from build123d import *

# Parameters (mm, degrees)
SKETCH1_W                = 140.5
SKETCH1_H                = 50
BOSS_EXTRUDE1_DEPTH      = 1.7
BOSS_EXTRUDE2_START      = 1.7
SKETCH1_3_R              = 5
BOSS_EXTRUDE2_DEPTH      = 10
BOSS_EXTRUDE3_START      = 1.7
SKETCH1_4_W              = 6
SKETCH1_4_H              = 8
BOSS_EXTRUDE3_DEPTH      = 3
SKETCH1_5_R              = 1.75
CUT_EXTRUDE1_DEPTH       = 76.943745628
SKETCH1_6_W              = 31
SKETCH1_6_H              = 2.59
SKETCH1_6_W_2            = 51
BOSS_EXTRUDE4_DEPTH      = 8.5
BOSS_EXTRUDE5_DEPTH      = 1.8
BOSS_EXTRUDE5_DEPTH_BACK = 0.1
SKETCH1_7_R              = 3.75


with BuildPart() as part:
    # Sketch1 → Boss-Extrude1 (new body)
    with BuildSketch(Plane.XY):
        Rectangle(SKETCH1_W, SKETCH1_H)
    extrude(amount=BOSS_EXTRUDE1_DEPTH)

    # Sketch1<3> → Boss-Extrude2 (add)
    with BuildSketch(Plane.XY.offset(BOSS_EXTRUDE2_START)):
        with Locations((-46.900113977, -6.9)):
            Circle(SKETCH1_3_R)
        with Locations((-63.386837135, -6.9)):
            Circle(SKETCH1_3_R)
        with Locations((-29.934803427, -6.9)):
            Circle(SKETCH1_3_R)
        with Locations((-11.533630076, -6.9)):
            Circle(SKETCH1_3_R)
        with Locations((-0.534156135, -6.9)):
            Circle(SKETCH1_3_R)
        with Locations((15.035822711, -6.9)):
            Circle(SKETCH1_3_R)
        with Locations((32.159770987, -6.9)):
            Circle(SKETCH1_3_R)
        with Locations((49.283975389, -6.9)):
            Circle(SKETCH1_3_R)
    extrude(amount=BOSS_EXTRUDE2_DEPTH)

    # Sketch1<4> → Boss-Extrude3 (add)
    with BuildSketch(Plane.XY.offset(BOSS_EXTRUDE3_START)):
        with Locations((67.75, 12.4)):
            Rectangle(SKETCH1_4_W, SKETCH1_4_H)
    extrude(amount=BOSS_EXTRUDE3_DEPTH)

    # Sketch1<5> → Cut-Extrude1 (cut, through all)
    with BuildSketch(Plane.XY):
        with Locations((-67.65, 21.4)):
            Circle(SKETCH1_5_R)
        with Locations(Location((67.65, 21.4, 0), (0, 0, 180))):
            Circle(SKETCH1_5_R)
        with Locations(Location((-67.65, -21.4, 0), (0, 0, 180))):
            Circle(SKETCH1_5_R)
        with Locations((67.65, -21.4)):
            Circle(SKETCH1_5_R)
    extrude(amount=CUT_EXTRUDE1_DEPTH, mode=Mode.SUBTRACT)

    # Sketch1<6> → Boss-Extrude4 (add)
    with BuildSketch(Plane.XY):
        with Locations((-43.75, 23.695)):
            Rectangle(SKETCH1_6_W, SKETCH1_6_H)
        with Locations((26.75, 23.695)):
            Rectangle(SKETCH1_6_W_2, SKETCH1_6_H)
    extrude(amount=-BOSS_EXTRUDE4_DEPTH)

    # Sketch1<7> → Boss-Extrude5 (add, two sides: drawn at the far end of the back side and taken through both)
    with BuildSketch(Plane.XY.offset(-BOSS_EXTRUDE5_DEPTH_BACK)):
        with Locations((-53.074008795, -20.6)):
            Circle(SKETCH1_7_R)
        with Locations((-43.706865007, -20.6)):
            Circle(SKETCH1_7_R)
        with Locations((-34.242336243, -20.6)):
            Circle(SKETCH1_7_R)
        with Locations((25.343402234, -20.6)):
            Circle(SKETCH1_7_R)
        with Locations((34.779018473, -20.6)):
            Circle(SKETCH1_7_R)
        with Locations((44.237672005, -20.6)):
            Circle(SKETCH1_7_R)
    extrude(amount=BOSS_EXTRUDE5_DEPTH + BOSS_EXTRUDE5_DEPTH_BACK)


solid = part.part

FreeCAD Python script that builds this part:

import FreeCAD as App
import Part
import Sketcher
Q = App.Units.Quantity


def add_polygon(sketch, points):
    """Adds a closed chain of lines whose ends are joined by coincident constraints."""
    first, n = sketch.GeometryCount, len(points)
    for a, b in zip(points, points[1:] + points[:1]):
        sketch.addGeometry(Part.LineSegment(App.Vector(*a, 0), App.Vector(*b, 0)), False)
    for i in range(n):
        sketch.addConstraint(Sketcher.Constraint("Coincident", first + i, 2, first + (i + 1) % n, 1))

doc = App.newDocument("Part")
body = doc.addObject("PartDesign::Body", "Body")

# Sketch on XY plane
sketch1 = body.newObject("Sketcher::SketchObject", "Sketch")
sketch1.AttachmentSupport = (doc.getObject("XY_Plane"), [""])
sketch1.MapMode = "FlatFace"
add_polygon(sketch1, [(-70.25, 25), (-70.25, -25), (70.25, -25), (70.25, 25)])  # lines 0-3
sketch1.addConstraint(Sketcher.Constraint("Vertical", 0))
sketch1.addConstraint(Sketcher.Constraint("Horizontal", 1))
sketch1.addConstraint(Sketcher.Constraint("Vertical", 2))
sketch1.addConstraint(Sketcher.Constraint("Horizontal", 3))
sketch1.addConstraint(Sketcher.Constraint("Symmetric", 0, 2, 2, 2, -1, 1))
sketch1.addConstraint(Sketcher.Constraint("DistanceY", 0, 2, 0, 1, Q("50 mm")))
sketch1.addConstraint(Sketcher.Constraint("DistanceX", 1, 1, 1, 2, Q("140.5 mm")))
pad1 = body.newObject("PartDesign::Pad", "Pad")
pad1.Profile = sketch1
pad1.Length = 1.7

# Sketch on XY plane
sketch2 = body.newObject("Sketcher::SketchObject", "Sketch001")
sketch2.AttachmentSupport = (doc.getObject("XY_Plane"), [""])
sketch2.MapMode = "FlatFace"
sketch2.AttachmentOffset = App.Placement(App.Vector(0, 0, 1.7), App.Rotation())
sketch2.addGeometry(Part.Circle(App.Vector(-46.900114, -6.9, 0), App.Vector(0, 0, 1), 5), False)
sketch2.addGeometry(Part.Circle(App.Vector(-63.386837, -6.9, 0), App.Vector(0, 0, 1), 5), False)
sketch2.addGeometry(Part.Circle(App.Vector(-29.934803, -6.9, 0), App.Vector(0, 0, 1), 5), False)
sketch2.addGeometry(Part.Circle(App.Vector(-11.53363, -6.9, 0), App.Vector(0, 0, 1), 5), False)
sketch2.addGeometry(Part.Circle(App.Vector(-0.534156, -6.9, 0), App.Vector(0, 0, 1), 5), False)
sketch2.addGeometry(Part.Circle(App.Vector(15.035823, -6.9, 0), App.Vector(0, 0, 1), 5), False)
sketch2.addGeometry(Part.Circle(App.Vector(32.159771, -6.9, 0), App.Vector(0, 0, 1), 5), False)
sketch2.addGeometry(Part.Circle(App.Vector(49.283975, -6.9, 0), App.Vector(0, 0, 1), 5), False)
sketch2.addConstraint(Sketcher.Constraint("Equal", 0, 1))
sketch2.addConstraint(Sketcher.Constraint("Equal", 1, 2))
sketch2.addConstraint(Sketcher.Constraint("Equal", 2, 3))
sketch2.addConstraint(Sketcher.Constraint("Equal", 3, 4))
sketch2.addConstraint(Sketcher.Constraint("Equal", 4, 5))
sketch2.addConstraint(Sketcher.Constraint("Equal", 5, 6))
sketch2.addConstraint(Sketcher.Constraint("Equal", 6, 7))
sketch2.addConstraint(Sketcher.Constraint("Horizontal", 0, 3, 1, 3))
sketch2.addConstraint(Sketcher.Constraint("Horizontal", 1, 3, 2, 3))
sketch2.addConstraint(Sketcher.Constraint("Horizontal", 2, 3, 3, 3))
sketch2.addConstraint(Sketcher.Constraint("Horizontal", 3, 3, 4, 3))
sketch2.addConstraint(Sketcher.Constraint("Horizontal", 4, 3, 5, 3))
sketch2.addConstraint(Sketcher.Constraint("Horizontal", 5, 3, 6, 3))
sketch2.addConstraint(Sketcher.Constraint("Horizontal", 6, 3, 7, 3))
sketch2.addConstraint(Sketcher.Constraint("Diameter", 0, Q("10 mm")))
sketch2.addConstraint(Sketcher.Constraint("DistanceY", 0, 3, -1, 1, Q("6.9 mm")))
sketch2.addConstraint(Sketcher.Constraint("DistanceX", 3, 3, 6, 3, Q("43.693401 mm")))
sketch2.addConstraint(Sketcher.Constraint("DistanceX", 3, 3, -1, 1, Q("11.53363 mm")))
sketch2.addConstraint(Sketcher.Constraint("DistanceX", 0, 3, 2, 3, Q("16.965311 mm")))
sketch2.addConstraint(Sketcher.Constraint("DistanceX", 1, 3, 4, 3, Q("62.852681 mm")))
sketch2.addConstraint(Sketcher.Constraint("DistanceX", 4, 3, 5, 3, Q("15.569979 mm")))
sketch2.addConstraint(Sketcher.Constraint("DistanceX", 5, 3, 6, 3, Q("17.123948 mm")))
sketch2.addConstraint(Sketcher.Constraint("DistanceX", 4, 3, 7, 3, Q("49.818132 mm")))
sketch2.addConstraint(Sketcher.Constraint("DistanceX", 2, 3, 7, 3, Q("79.218779 mm")))
pad2 = body.newObject("PartDesign::Pad", "Pad001")
pad2.Profile = sketch2
pad2.Length = 10

# Sketch on XY plane
sketch3 = body.newObject("Sketcher::SketchObject", "Sketch002")
sketch3.AttachmentSupport = (doc.getObject("XY_Plane"), [""])
sketch3.MapMode = "FlatFace"
sketch3.AttachmentOffset = App.Placement(App.Vector(0, 0, 1.7), App.Rotation())
add_polygon(sketch3, [(64.75, 16.4), (64.75, 8.4), (70.75, 8.4), (70.75, 16.4)])  # lines 0-3
sketch3.addConstraint(Sketcher.Constraint("Vertical", 0))
sketch3.addConstraint(Sketcher.Constraint("Horizontal", 1))
sketch3.addConstraint(Sketcher.Constraint("Vertical", 2))
sketch3.addConstraint(Sketcher.Constraint("Horizontal", 3))
sketch3.addConstraint(Sketcher.Constraint("DistanceX", 1, 1, 1, 2, Q("6 mm")))
sketch3.addConstraint(Sketcher.Constraint("DistanceY", 0, 2, 0, 1, Q("8 mm")))
sketch3.addConstraint(Sketcher.Constraint("DistanceY", -1, 1, 0, 2, Q("8.4 mm")))
sketch3.addConstraint(Sketcher.Constraint("DistanceX", -1, 1, 0, 2, Q("64.75 mm")))
pad3 = body.newObject("PartDesign::Pad", "Pad002")
pad3.Profile = sketch3
pad3.Length = 3

# Sketch on XY plane
sketch4 = body.newObject("Sketcher::SketchObject", "Sketch003")
sketch4.AttachmentSupport = (doc.getObject("XY_Plane"), [""])
sketch4.MapMode = "FlatFace"
sketch4.addGeometry(Part.Circle(App.Vector(-67.65, 21.4, 0), App.Vector(0, 0, 1), 1.75), False)
sketch4.addGeometry(Part.Circle(App.Vector(67.65, 21.4, 0), App.Vector(0, 0, 1), 1.75), False)
sketch4.addGeometry(Part.Circle(App.Vector(-67.65, -21.4, 0), App.Vector(0, 0, 1), 1.75), False)
sketch4.addGeometry(Part.Circle(App.Vector(67.65, -21.4, 0), App.Vector(0, 0, 1), 1.75), False)
sketch4.addConstraint(Sketcher.Constraint("Equal", 0, 1))
sketch4.addConstraint(Sketcher.Constraint("Equal", 1, 2))
sketch4.addConstraint(Sketcher.Constraint("Equal", 2, 3))
sketch4.addConstraint(Sketcher.Constraint("Symmetric", 1, 3, 2, 3, -1, 1))
sketch4.addConstraint(Sketcher.Constraint("Symmetric", 0, 3, 3, 3, -1, 1))
sketch4.addConstraint(Sketcher.Constraint("Symmetric", 0, 3, 1, 3, -2))
sketch4.addConstraint(Sketcher.Constraint("Diameter", 0, Q("3.5 mm")))
sketch4.addConstraint(Sketcher.Constraint("DistanceY", -1, 1, 0, 3, Q("21.4 mm")))
sketch4.addConstraint(Sketcher.Constraint("DistanceX", 0, 3, 1, 3, Q("135.3 mm")))
pocket1 = body.newObject("PartDesign::Pocket", "Pocket")
pocket1.Profile = sketch4
pocket1.Type = "ThroughAll"
pocket1.Reversed = True

# Sketch on XY plane
sketch5 = body.newObject("Sketcher::SketchObject", "Sketch004")
sketch5.AttachmentSupport = (doc.getObject("XY_Plane"), [""])
sketch5.MapMode = "FlatFace"
add_polygon(sketch5, [(-59.25, 24.99), (-59.25, 22.4), (-28.25, 22.4), (-28.25, 24.99)])  # lines 0-3
add_polygon(sketch5, [(1.25, 24.99), (1.25, 22.4), (52.25, 22.4), (52.25, 24.99)])  # lines 4-7
sketch5.addConstraint(Sketcher.Constraint("Vertical", 0))
sketch5.addConstraint(Sketcher.Constraint("Horizontal", 1))
sketch5.addConstraint(Sketcher.Constraint("Vertical", 2))
sketch5.addConstraint(Sketcher.Constraint("Horizontal", 3))
sketch5.addConstraint(Sketcher.Constraint("Vertical", 4))
sketch5.addConstraint(Sketcher.Constraint("Horizontal", 5))
sketch5.addConstraint(Sketcher.Constraint("Vertical", 6))
sketch5.addConstraint(Sketcher.Constraint("Horizontal", 7))
sketch5.addConstraint(Sketcher.Constraint("Horizontal", 1, 2, 4, 2))
sketch5.addConstraint(Sketcher.Constraint("Horizontal", 3, 2, 6, 2))
sketch5.addConstraint(Sketcher.Constraint("DistanceX", 1, 1, 1, 2, Q("31 mm")))
sketch5.addConstraint(Sketcher.Constraint("DistanceX", 5, 1, 5, 2, Q("51 mm")))
sketch5.addConstraint(Sketcher.Constraint("DistanceY", 0, 2, 0, 1, Q("2.59 mm")))
sketch5.addConstraint(Sketcher.Constraint("DistanceY", -1, 1, 0, 2, Q("22.4 mm")))
sketch5.addConstraint(Sketcher.Constraint("DistanceX", 1, 2, 4, 2, Q("29.5 mm")))
sketch5.addConstraint(Sketcher.Constraint("DistanceX", 0, 2, -1, 1, Q("59.25 mm")))
pad4 = body.newObject("PartDesign::Pad", "Pad003")
pad4.Profile = sketch5
pad4.Length = 8.5
pad4.Reversed = True

# Sketch on XY plane
sketch6 = body.newObject("Sketcher::SketchObject", "Sketch005")
sketch6.AttachmentSupport = (doc.getObject("XY_Plane"), [""])
sketch6.MapMode = "FlatFace"
sketch6.addGeometry(Part.Circle(App.Vector(-53.074009, -20.6, 0), App.Vector(0, 0, 1), 3.75), False)
sketch6.addGeometry(Part.Circle(App.Vector(-43.706865, -20.6, 0), App.Vector(0, 0, 1), 3.75), False)
sketch6.addGeometry(Part.Circle(App.Vector(-34.242336, -20.6, 0), App.Vector(0, 0, 1), 3.75), False)
sketch6.addGeometry(Part.Circle(App.Vector(25.343402, -20.6, 0), App.Vector(0, 0, 1), 3.75), False)
sketch6.addGeometry(Part.Circle(App.Vector(34.779018, -20.6, 0), App.Vector(0, 0, 1), 3.75), False)
sketch6.addGeometry(Part.Circle(App.Vector(44.237672, -20.6, 0), App.Vector(0, 0, 1), 3.75), False)
sketch6.addConstraint(Sketcher.Constraint("Equal", 0, 1))
sketch6.addConstraint(Sketcher.Constraint("Equal", 1, 2))
sketch6.addConstraint(Sketcher.Constraint("Equal", 2, 3))
sketch6.addConstraint(Sketcher.Constraint("Equal", 3, 4))
sketch6.addConstraint(Sketcher.Constraint("Equal", 4, 5))
sketch6.addConstraint(Sketcher.Constraint("Horizontal", 0, 3, 1, 3))
sketch6.addConstraint(Sketcher.Constraint("Horizontal", 1, 3, 2, 3))
sketch6.addConstraint(Sketcher.Constraint("Horizontal", 2, 3, 3, 3))
sketch6.addConstraint(Sketcher.Constraint("Horizontal", 3, 3, 4, 3))
sketch6.addConstraint(Sketcher.Constraint("Horizontal", 4, 3, 5, 3))
sketch6.addConstraint(Sketcher.Constraint("Diameter", 0, Q("7.5 mm")))
sketch6.addConstraint(Sketcher.Constraint("DistanceY", 0, 3, -1, 1, Q("20.6 mm")))
sketch6.addConstraint(Sketcher.Constraint("DistanceX", 0, 3, -1, 1, Q("53.074009 mm")))
sketch6.addConstraint(Sketcher.Constraint("DistanceX", -1, 1, 4, 3, Q("34.779018 mm")))
sketch6.addConstraint(Sketcher.Constraint("DistanceX", 1, 3, 2, 3, Q("9.464529 mm")))
sketch6.addConstraint(Sketcher.Constraint("DistanceX", 2, 3, 3, 3, Q("59.585738 mm")))
sketch6.addConstraint(Sketcher.Constraint("DistanceX", 0, 3, 3, 3, Q("78.417411 mm")))
sketch6.addConstraint(Sketcher.Constraint("DistanceX", 3, 3, 5, 3, Q("18.89427 mm")))
pad5 = body.newObject("PartDesign::Pad", "Pad004")
pad5.Profile = sketch6
pad5.Type = "TwoLengths"
pad5.Length = 1.8
pad5.Length2 = 0.1

doc.recompute()
